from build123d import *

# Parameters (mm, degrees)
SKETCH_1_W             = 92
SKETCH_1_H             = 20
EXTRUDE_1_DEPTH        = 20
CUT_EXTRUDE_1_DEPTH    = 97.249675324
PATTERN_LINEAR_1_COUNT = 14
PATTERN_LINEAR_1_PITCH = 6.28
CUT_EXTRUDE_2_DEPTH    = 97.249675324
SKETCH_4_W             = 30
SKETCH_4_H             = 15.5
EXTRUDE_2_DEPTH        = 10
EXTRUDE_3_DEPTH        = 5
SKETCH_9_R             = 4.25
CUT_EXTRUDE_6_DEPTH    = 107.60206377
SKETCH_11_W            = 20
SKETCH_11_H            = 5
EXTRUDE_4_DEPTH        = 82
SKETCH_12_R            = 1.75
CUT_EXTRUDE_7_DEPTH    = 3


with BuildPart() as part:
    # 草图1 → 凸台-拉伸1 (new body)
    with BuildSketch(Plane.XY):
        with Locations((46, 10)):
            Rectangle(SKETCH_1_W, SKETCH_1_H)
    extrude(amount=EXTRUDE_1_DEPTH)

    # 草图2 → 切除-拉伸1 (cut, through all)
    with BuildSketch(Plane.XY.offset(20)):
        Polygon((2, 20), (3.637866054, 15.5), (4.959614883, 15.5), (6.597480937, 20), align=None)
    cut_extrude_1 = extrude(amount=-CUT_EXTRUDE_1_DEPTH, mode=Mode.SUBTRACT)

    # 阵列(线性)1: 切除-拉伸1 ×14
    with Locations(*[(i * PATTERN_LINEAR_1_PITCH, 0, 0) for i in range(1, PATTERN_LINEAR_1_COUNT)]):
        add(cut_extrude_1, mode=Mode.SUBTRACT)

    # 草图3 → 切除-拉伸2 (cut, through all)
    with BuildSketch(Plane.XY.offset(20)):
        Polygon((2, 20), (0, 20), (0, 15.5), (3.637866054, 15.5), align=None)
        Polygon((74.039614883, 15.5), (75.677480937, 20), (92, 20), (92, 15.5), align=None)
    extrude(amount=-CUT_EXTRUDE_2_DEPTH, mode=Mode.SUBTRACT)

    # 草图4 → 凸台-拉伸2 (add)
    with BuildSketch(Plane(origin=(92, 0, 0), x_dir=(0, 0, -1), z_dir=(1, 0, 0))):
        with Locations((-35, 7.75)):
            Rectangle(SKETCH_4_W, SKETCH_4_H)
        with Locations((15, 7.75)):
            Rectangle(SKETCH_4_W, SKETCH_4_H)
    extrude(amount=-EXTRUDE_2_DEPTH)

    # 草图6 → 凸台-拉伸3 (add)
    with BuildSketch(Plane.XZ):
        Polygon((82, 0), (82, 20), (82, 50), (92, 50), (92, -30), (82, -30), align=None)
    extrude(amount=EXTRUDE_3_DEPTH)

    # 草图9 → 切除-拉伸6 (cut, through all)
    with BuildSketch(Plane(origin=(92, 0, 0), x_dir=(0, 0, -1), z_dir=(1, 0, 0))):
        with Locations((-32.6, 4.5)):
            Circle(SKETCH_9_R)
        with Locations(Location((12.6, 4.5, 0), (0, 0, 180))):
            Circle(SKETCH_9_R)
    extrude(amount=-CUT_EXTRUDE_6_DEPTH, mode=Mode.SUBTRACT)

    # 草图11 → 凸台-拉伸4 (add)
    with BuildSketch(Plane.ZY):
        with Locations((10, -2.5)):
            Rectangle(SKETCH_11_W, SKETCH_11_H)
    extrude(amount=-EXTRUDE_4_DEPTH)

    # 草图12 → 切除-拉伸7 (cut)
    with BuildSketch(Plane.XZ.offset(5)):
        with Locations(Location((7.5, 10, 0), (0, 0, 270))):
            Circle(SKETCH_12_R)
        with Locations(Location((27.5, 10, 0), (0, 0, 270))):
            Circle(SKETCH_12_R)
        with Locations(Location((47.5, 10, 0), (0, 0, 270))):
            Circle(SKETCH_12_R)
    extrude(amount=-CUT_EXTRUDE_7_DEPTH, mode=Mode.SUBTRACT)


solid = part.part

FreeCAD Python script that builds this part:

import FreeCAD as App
import Part
import Sketcher
Q = App.Units.Quantity


def add_polygon(sketch, points):
    """Adds a closed chain of lines whose ends are joined by coincident constraints."""
    first, n = sketch.GeometryCount, len(points)
    for a, b in zip(points, points[1:] + points[:1]):
        sketch.addGeometry(Part.LineSegment(App.Vector(*a, 0), App.Vector(*b, 0)), False)
    for i in range(n):
        sketch.addConstraint(Sketcher.Constraint("Coincident", first + i, 2, first + (i + 1) % n, 1))

doc = App.newDocument("Part")
body = doc.addObject("PartDesign::Body", "Body")

sketch1 = body.newObject("Sketcher::SketchObject", "Sketch")
sketch1.AttachmentSupport = (doc.getObject("XY_Plane"), [""])
sketch1.MapMode = "FlatFace"
add_polygon(sketch1, [(0, 20), (0, 0), (92, 0), (92, 20)])
sketch1.addConstraint([
    Sketcher.Constraint("Vertical", 0),
    Sketcher.Constraint("Horizontal", 1),
    Sketcher.Constraint("Vertical", 2),
    Sketcher.Constraint("Horizontal", 3),
    Sketcher.Constraint("Coincident", 0, 2, -1, 1),
    Sketcher.Constraint("DistanceX", 1, 1, 1, 2, Q("92 mm")),
    Sketcher.Constraint("DistanceY", 0, 2, 0, 1, Q("20 mm")),
])
pad1 = body.newObject("PartDesign::Pad", "Pad")
pad1.Profile = sketch1
pad1.Length = 20

sketch2 = body.newObject("Sketcher::SketchObject", "Sketch001")
sketch2.AttachmentSupport = (doc.getObject("XY_Plane"), [""])
sketch2.MapMode = "FlatFace"
sketch2.AttachmentOffset = App.Placement(App.Vector(0, 0, 20), App.Rotation())
add_polygon(sketch2, [(2, 20), (3.6, 15.5), (5, 15.5), (6.6, 20)])
sketch2.addConstraint([
    Sketcher.Constraint("Horizontal", 1),
    Sketcher.Constraint("Horizontal", 3),
    Sketcher.Constraint("Equal", 0, 2),
    Sketcher.Constraint("Angle", 0, Q("-70 deg")),
    Sketcher.Constraint("DistanceY", -1, 1, 2, 2, Q("20 mm")),
    Sketcher.Constraint("DistanceX", -1, 1, 3, 2, Q("2 mm")),
    Sketcher.Constraint("DistanceY", -1, 1, 0, 2, Q("15.5 mm")),
    Sketcher.Constraint("DistanceX", 1, 1, 1, 2, Q("1.321749 mm")),
])
pocket1 = body.newObject("PartDesign::Pocket", "Pocket")
pocket1.Profile = sketch2
pocket1.Type = "ThroughAll"
doc.recompute()

linearpattern = body.newObject("PartDesign::LinearPattern", "LinearPattern")
linearpattern.Originals = [pocket1]
linearpattern.Direction = (doc.getObject("X_Axis"), [""])
linearpattern.Mode = "offset"
linearpattern.Offset = 6.28
linearpattern.Occurrences = 14
body.Tip = linearpattern

sketch3 = body.newObject("Sketcher::SketchObject", "Sketch002")
sketch3.AttachmentSupport = (doc.getObject("XY_Plane"), [""])
sketch3.MapMode = "FlatFace"
sketch3.AttachmentOffset = App.Placement(App.Vector(0, 0, 20), App.Rotation())
add_polygon(sketch3, [(2, 20), (0, 20), (0, 15.5), (3.6, 15.5)])
add_polygon(sketch3, [(75.7, 20), (74, 15.5), (92, 15.5), (92, 20)])
sketch3.addConstraint([
    Sketcher.Constraint("Horizontal", 0),
    Sketcher.Constraint("Vertical", 1),
    Sketcher.Constraint("Horizontal", 2),
    Sketcher.Constraint("Horizontal", 5),
    Sketcher.Constraint("Vertical", 6),
    Sketcher.Constraint("Horizontal", 7),
    Sketcher.Constraint("PointOnObject", 0, 2, -2),
    Sketcher.Constraint("Horizontal", 2, 2, 4, 2),
    Sketcher.Constraint("Horizontal", 3, 2, 6, 2),
    Sketcher.Constraint("Equal", 3, 4),
    Sketcher.Constraint("DistanceX", 0, 2, 0, 1, Q("2 mm")),
    Sketcher.Constraint("Angle", 3, Q("110 deg")),
    Sketcher.Constraint("DistanceY", 1, 2, 1, 1, Q("4.5 mm")),
    Sketcher.Constraint("DistanceY", -1, 1, 0, 2, Q("20 mm")),
    Sketcher.Constraint("DistanceX", -1, 1, 5, 2, Q("92 mm")),
    Sketcher.Constraint("DistanceX", 7, 2, 7, 1, Q("16.322519 mm")),
])
pocket2 = body.newObject("PartDesign::Pocket", "Pocket001")
pocket2.Profile = sketch3
pocket2.Type = "ThroughAll"

sketch4 = body.newObject("Sketcher::SketchObject", "Sketch003")
sketch4.AttachmentSupport = (doc.getObject("YZ_Plane"), [""])
sketch4.MapMode = "FlatFace"
sketch4.AttachmentOffset = App.Placement(App.Vector(0, 0, 92), App.Rotation())
add_polygon(sketch4, [(16, 50), (0, 50), (0, 20), (16, 20)])
add_polygon(sketch4, [(16, 0), (0, 0), (0, -30), (16, -30)])
sketch4.addConstraint([
    Sketcher.Constraint("Horizontal", 0),
    Sketcher.Constraint("Vertical", 1),
    Sketcher.Constraint("Horizontal", 2),
    Sketcher.Constraint("Vertical", 3),
    Sketcher.Constraint("Horizontal", 4),
    Sketcher.Constraint("Vertical", 5),
    Sketcher.Constraint("Horizontal", 6),
    Sketcher.Constraint("Vertical", 7),
    Sketcher.Constraint("Coincident", 4, 2, -1, 1),
    Sketcher.Constraint("PointOnObject", 0, 2, -2),
    Sketcher.Constraint("Vertical", 3, 2, 6, 2),
    Sketcher.Constraint("Equal", 3, 5),
    Sketcher.Constraint("DistanceY", 1, 2, 1, 1, Q("30 mm")),
    Sketcher.Constraint("DistanceX", 0, 2, 0, 1, Q("15.5 mm")),
    Sketcher.Constraint("DistanceY", -1, 1, 0, 2, Q("50 mm")),
])
pad2 = body.newObject("PartDesign::Pad", "Pad001")
pad2.Profile = sketch4
pad2.Length = 10
pad2.Reversed = True

sketch5 = body.newObject("Sketcher::SketchObject", "Sketch004")
sketch5.AttachmentSupport = (doc.getObject("XZ_Plane"), [""])
sketch5.MapMode = "FlatFace"
add_polygon(sketch5, [(82, 50), (82, -30), (92, -30), (92, 50)])
sketch5.addConstraint([
    Sketcher.Constraint("Vertical", 0),
    Sketcher.Constraint("Horizontal", 1),
    Sketcher.Constraint("Vertical", 2),
    Sketcher.Constraint("Horizontal", 3),
    Sketcher.Constraint("DistanceX", 1, 1, 1, 2, Q("10 mm")),
    Sketcher.Constraint("DistanceY", 0, 2, 0, 1, Q("80 mm")),
    Sketcher.Constraint("DistanceX", -1, 1, 0, 2, Q("82 mm")),
    Sketcher.Constraint("DistanceY", 0, 2, -1, 1, Q("30 mm")),
])
pad3 = body.newObject("PartDesign::Pad", "Pad002")
pad3.Profile = sketch5
pad3.Length = 5

sketch6 = body.newObject("Sketcher::SketchObject", "Sketch005")
sketch6.AttachmentSupport = (doc.getObject("YZ_Plane"), [""])
sketch6.MapMode = "FlatFace"
sketch6.AttachmentOffset = App.Placement(App.Vector(0, 0, 92), App.Rotation())
sketch6.addGeometry([
    Part.Circle(App.Vector(4.5, 32.6, 0), App.Vector(0, 0, 1), 4.2),
    Part.Circle(App.Vector(4.5, -12.6, 0), App.Vector(0, 0, 1), 4.2),
], False)
sketch6.addConstraint([
    Sketcher.Constraint("Equal", 0, 1),
    Sketcher.Constraint("Vertical", 0, 3, 1, 3),
    Sketcher.Constraint("Diameter", 0, Q("8.5 mm")),
    Sketcher.Constraint("DistanceX", -1, 1, 0, 3, Q("4.5 mm")),
    Sketcher.Constraint("DistanceY", -1, 1, 0, 3, Q("32.6 mm")),
    Sketcher.Constraint("DistanceY", 1, 3, -1, 1, Q("12.6 mm")),
])
pocket3 = body.newObject("PartDesign::Pocket", "Pocket002")
pocket3.Profile = sketch6
pocket3.Type = "ThroughAll"

sketch7 = body.newObject("Sketcher::SketchObject", "Sketch006")
sketch7.AttachmentSupport = (doc.getObject("YZ_Plane"), [""])
sketch7.MapMode = "FlatFace"
add_polygon(sketch7, [(0, 0), (-5, 0), (-5, 20), (0, 20)])
sketch7.addConstraint([
    Sketcher.Constraint("Horizontal", 0),
    Sketcher.Constraint("Vertical", 1),
    Sketcher.Constraint("Horizontal", 2),
    Sketcher.Constraint("Vertical", 3),
    Sketcher.Constraint("Coincident", 3, 2, -1, 1),
    Sketcher.Constraint("DistanceX", 0, 2, 0, 1, Q("5 mm")),
    Sketcher.Constraint("DistanceY", 1, 1, 1, 2, Q("20 mm")),
])
pad4 = body.newObject("PartDesign::Pad", "Pad003")
pad4.Profile = sketch7
pad4.Length = 82

sketch8 = body.newObject("Sketcher::SketchObject", "Sketch007")
sketch8.AttachmentSupport = (doc.getObject("XZ_Plane"), [""])
sketch8.MapMode = "FlatFace"
sketch8.AttachmentOffset = App.Placement(App.Vector(0, 0, 5), App.Rotation())
sketch8.addGeometry([
    Part.Circle(App.Vector(7.5, 10, 0), App.Vector(0, 0, 1), 1.8),
    Part.Circle(App.Vector(27.5, 10, 0), App.Vector(0, 0, 1), 1.8),
    Part.Circle(App.Vector(47.5, 10, 0), App.Vector(0, 0, 1), 1.8),
], False)
sketch8.addConstraint([
    Sketcher.Constraint("Equal", 0, 1),
    Sketcher.Constraint("Equal", 1, 2),
    Sketcher.Constraint("Horizontal", 0, 3, 1, 3),
    Sketcher.Constraint("Horizontal", 1, 3, 2, 3),
    Sketcher.Constraint("Diameter", 0, Q("3.5 mm")),
    Sketcher.Constraint("DistanceY", -1, 1, 0, 3, Q("10 mm")),
    Sketcher.Constraint("DistanceX", 0, 3, 1, 3, Q("20 mm")),
    Sketcher.Constraint("DistanceX", 1, 3, 2, 3, Q("20 mm")),
    Sketcher.Constraint("DistanceX", -1, 1, 0, 3, Q("7.5 mm")),
])
pocket4 = body.newObject("PartDesign::Pocket", "Pocket003")
pocket4.Profile = sketch8
pocket4.Length = 3

doc.recompute()
